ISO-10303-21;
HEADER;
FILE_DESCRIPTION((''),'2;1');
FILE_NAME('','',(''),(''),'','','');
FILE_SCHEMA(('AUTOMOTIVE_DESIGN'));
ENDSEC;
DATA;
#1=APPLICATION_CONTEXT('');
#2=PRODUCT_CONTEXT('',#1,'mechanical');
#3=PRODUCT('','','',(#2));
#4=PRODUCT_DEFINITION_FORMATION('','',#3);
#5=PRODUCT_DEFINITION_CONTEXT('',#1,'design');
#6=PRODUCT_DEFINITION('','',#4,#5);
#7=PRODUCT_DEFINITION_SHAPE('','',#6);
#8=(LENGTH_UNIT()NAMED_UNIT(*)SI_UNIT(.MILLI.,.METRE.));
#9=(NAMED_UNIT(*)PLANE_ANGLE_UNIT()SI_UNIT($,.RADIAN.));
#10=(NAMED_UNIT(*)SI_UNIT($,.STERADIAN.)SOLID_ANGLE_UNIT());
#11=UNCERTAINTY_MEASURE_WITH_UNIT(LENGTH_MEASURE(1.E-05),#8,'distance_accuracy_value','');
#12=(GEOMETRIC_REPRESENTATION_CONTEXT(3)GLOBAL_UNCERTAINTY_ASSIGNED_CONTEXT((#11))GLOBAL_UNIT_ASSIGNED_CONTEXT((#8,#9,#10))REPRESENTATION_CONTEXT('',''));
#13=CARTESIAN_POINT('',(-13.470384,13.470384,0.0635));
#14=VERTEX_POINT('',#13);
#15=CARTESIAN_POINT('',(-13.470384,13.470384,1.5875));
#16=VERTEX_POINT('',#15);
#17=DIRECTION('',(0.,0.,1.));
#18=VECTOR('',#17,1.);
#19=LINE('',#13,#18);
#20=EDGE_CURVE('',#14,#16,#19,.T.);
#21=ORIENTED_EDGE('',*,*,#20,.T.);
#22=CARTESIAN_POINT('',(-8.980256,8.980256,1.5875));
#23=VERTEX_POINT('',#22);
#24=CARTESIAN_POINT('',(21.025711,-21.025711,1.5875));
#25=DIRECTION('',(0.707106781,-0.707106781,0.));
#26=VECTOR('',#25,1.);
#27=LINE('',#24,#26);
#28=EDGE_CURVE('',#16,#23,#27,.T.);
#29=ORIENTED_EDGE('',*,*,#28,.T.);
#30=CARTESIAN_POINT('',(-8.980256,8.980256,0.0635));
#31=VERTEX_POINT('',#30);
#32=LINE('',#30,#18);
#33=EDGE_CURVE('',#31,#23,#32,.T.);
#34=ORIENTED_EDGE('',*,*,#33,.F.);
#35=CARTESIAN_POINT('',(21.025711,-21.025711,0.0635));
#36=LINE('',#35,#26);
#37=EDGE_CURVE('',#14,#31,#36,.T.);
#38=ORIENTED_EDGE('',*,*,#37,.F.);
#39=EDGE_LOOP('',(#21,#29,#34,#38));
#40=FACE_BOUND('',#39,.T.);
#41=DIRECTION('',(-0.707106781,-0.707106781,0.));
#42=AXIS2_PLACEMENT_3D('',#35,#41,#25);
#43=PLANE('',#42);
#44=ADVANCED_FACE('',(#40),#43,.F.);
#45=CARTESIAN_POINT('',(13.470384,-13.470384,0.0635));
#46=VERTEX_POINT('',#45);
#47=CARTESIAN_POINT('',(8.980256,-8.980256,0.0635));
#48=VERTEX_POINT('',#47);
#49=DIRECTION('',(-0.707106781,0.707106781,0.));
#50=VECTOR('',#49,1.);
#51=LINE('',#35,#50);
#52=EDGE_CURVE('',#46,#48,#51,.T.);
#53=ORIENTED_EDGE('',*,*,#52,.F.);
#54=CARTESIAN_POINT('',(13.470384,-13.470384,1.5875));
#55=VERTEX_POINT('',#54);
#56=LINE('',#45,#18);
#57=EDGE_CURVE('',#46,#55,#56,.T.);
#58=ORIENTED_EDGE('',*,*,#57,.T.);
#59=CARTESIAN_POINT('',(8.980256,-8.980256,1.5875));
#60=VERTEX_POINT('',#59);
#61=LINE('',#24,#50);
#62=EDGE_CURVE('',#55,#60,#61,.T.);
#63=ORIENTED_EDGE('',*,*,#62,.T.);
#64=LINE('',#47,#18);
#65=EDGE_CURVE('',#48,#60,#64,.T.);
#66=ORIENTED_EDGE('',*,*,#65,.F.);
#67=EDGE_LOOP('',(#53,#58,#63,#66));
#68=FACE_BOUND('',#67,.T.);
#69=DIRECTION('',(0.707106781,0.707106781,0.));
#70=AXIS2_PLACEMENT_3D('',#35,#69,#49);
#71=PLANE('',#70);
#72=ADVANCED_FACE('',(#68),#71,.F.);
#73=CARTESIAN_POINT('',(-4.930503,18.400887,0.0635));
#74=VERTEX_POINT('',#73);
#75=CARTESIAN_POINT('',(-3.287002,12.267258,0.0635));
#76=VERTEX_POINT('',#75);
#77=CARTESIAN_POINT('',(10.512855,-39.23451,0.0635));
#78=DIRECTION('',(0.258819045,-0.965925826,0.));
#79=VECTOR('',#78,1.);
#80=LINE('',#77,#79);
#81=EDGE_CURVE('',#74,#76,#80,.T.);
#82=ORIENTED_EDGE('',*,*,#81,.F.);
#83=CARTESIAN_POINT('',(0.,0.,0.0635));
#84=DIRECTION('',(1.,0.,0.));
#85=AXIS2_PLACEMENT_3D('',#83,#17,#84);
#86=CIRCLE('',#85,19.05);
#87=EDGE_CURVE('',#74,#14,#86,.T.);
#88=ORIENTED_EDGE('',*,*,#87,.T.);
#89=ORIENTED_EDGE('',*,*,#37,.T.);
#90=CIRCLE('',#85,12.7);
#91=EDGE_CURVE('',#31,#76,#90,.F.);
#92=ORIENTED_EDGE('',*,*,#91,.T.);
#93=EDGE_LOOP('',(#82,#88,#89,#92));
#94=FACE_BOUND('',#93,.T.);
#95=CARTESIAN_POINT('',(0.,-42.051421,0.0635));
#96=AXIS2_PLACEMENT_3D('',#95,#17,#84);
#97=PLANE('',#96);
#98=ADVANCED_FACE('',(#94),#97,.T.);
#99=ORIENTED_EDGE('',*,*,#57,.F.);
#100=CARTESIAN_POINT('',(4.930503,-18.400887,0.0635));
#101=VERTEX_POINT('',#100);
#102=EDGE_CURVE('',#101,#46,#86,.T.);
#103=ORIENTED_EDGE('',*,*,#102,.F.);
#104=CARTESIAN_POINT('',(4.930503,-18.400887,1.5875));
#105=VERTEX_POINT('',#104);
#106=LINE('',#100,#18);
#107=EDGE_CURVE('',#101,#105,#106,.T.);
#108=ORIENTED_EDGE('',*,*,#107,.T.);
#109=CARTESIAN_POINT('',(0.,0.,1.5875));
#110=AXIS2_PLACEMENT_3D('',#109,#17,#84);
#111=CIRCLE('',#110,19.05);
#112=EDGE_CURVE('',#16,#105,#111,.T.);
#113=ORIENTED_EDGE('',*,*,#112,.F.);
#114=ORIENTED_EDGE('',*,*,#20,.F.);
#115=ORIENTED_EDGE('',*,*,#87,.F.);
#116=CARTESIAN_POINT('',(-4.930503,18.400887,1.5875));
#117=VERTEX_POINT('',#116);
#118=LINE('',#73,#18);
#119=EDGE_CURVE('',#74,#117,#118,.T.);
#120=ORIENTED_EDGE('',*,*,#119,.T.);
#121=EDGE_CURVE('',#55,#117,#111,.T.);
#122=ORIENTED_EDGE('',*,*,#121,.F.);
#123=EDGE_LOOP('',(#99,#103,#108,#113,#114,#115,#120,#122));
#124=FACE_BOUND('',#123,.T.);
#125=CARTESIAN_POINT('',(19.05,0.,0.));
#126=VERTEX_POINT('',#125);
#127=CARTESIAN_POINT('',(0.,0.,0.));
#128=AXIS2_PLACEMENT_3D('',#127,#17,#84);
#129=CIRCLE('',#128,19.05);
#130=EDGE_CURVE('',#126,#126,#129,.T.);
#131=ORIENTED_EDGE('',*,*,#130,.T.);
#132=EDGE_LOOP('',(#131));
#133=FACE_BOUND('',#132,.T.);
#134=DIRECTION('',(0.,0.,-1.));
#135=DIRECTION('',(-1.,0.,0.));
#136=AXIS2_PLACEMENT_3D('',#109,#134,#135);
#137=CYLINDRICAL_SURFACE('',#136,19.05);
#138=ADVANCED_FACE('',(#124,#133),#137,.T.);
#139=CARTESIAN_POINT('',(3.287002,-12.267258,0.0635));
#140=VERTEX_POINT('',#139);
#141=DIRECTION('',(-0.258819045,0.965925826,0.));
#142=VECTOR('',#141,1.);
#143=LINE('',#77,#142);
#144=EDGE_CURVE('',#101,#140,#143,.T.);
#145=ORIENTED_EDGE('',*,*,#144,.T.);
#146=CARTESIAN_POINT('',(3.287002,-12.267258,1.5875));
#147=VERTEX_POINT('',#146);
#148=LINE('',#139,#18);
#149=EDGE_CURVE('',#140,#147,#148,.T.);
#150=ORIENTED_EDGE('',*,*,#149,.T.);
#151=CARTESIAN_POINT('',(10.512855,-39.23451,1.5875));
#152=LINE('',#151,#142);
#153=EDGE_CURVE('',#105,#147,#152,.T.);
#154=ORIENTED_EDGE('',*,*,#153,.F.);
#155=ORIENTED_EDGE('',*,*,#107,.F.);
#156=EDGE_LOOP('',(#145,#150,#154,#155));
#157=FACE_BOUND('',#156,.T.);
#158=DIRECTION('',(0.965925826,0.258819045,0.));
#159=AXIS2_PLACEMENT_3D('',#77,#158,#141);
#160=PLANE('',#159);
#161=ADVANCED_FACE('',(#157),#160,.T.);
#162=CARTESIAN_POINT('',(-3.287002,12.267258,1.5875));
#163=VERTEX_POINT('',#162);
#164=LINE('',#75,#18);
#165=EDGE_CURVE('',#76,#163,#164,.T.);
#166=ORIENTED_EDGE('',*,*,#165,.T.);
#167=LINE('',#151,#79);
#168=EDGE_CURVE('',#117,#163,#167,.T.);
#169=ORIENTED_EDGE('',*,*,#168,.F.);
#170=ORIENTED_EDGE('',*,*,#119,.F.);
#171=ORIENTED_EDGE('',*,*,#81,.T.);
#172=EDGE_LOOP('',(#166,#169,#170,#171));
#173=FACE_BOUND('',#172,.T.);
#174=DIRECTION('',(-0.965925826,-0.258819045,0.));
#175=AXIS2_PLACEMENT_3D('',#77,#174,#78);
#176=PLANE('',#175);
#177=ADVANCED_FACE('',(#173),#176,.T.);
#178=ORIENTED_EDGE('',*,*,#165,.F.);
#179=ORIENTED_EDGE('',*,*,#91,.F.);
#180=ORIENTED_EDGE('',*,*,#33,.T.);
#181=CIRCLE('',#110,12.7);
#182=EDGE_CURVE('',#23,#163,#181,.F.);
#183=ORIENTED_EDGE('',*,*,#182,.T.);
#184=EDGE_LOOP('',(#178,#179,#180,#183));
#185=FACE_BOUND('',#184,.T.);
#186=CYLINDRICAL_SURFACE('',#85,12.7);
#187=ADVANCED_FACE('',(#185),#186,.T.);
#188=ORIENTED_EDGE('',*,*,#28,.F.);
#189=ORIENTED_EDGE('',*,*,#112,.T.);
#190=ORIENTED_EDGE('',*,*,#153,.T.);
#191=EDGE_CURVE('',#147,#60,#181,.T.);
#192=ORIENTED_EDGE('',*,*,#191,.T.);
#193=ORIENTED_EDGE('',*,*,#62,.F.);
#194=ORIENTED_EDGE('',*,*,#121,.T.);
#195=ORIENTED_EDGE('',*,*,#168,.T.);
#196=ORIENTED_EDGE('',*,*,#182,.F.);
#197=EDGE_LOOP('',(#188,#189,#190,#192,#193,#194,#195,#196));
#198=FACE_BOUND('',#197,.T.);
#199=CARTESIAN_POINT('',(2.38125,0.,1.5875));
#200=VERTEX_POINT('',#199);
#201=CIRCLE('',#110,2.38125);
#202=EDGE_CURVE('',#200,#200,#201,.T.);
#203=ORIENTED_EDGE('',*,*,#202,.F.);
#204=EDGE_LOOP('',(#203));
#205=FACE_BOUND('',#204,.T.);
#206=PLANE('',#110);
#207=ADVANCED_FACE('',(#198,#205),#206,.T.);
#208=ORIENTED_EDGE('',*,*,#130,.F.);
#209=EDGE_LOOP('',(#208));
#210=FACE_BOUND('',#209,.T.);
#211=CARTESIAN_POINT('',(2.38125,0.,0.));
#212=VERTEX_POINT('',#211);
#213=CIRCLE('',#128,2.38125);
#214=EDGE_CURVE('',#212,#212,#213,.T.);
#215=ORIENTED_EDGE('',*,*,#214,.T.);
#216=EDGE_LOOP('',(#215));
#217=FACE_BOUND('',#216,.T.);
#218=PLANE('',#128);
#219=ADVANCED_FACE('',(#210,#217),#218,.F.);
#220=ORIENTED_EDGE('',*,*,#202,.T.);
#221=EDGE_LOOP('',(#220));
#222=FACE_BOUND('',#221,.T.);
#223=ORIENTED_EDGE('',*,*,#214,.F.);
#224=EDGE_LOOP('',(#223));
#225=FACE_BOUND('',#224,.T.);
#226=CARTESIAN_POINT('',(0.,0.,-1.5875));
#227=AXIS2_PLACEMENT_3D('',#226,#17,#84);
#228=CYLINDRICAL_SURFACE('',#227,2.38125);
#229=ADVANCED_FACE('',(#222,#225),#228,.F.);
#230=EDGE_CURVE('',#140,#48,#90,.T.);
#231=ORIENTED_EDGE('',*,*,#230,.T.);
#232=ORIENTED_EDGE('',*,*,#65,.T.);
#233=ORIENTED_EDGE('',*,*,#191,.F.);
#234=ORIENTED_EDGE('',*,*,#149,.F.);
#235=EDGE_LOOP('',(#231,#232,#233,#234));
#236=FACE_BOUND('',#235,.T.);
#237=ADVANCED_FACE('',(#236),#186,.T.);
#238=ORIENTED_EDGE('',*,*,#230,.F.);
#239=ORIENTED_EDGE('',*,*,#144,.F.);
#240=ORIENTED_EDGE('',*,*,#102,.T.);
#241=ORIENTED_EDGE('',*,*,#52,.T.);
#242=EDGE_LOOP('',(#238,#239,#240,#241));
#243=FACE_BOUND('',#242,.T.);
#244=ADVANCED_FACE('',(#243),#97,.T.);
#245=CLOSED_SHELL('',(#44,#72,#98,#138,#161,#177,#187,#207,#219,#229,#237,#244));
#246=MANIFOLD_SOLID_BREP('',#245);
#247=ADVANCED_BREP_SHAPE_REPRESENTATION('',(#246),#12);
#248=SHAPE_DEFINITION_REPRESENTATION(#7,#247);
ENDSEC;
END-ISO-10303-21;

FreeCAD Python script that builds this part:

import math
import FreeCAD as App
import Part
import Sketcher
from FreeCAD import Vector
Q = App.Units.Quantity

doc = App.newDocument("Part")
body = doc.addObject("PartDesign::Body", "Body")

# Sketch on XY plane
sketch1 = body.newObject("Sketcher::SketchObject", "Sketch")
sketch1.AttachmentSupport = (doc.getObject("XY_Plane"), [""])
sketch1.MapMode = "FlatFace"
sketch1.addGeometry(Part.Circle(Vector(0, 0, 0), Vector(0, 0, 1), 19.05), False)
sketch1.addConstraint([
    Sketcher.Constraint("Coincident", 0, 3, -1, 1),
    Sketcher.Constraint("Diameter", 0, Q("1.5 in")),
])
pad1 = body.newObject("PartDesign::Pad", "Pad")
pad1.Profile = sketch1
pad1.Length = Q("0.0625 in")

# Sketch on XY plane
sketch2 = body.newObject("Sketcher::SketchObject", "Sketch001")
sketch2.AttachmentSupport = (doc.getObject("XY_Plane"), [""])
sketch2.MapMode = "FlatFace"
sketch2.AttachmentOffset = App.Placement(Vector(0, 0, 0.0625 * 25.4), App.Rotation())
sketch2.addGeometry(Part.Circle(Vector(0, 0, 0), Vector(0, 0, 1), 2.38125), False)
sketch2.addConstraint([
    Sketcher.Constraint("Coincident", 0, 3, -1, 1),
    Sketcher.Constraint("Diameter", 0, Q("0.1875 in")),
])
pocket1 = body.newObject("PartDesign::Pocket", "Pocket")
pocket1.Profile = sketch2
pocket1.Length = Q("0.125 in")

# Sketch on XY plane
sketch3 = body.newObject("Sketcher::SketchObject", "Sketch002")
sketch3.AttachmentSupport = (doc.getObject("XY_Plane"), [""])
sketch3.MapMode = "FlatFace"
sketch3.AttachmentOffset = App.Placement(Vector(0, 0, 0.0625 * 25.4), App.Rotation())
sketch3.addGeometry([
    Part.ArcOfCircle(Part.Circle(Vector(0, 0, 0), Vector(0, 0, 1), 19.05), math.radians(105), math.radians(135)),  # 0
    Part.LineSegment(Vector(-13.470384, 13.470384, 0), Vector(-8.980256, 8.980256, 0)),  # 1
    Part.ArcOfCircle(Part.Circle(Vector(0, 0, 0), Vector(0, 0, 1), 12.7), math.radians(105), math.radians(135)),  # 2
    Part.LineSegment(Vector(-3.287002, 12.267258, 0), Vector(-4.930503, 18.400887, 0)),  # 3
    Part.LineSegment(Vector(3.287002, -12.267258, 0), Vector(4.930503, -18.400887, 0)),  # 4
    Part.ArcOfCircle(Part.Circle(Vector(0, 0, 0), Vector(0, 0, 1), 19.05), math.radians(-75), math.radians(-45)),  # 5
    Part.LineSegment(Vector(13.470384, -13.470384, 0), Vector(8.980256, -8.980256, 0)),  # 6
    Part.ArcOfCircle(Part.Circle(Vector(0, 0, 0), Vector(0, 0, 1), 12.7), math.radians(-75), math.radians(-45)),  # 7
], False)
sketch3.addConstraint([
    Sketcher.Constraint("Coincident", 0, 2, 1, 1),
    Sketcher.Constraint("Coincident", 1, 2, 2, 2),
    Sketcher.Constraint("Coincident", 2, 1, 3, 1),
    Sketcher.Constraint("Coincident", 3, 2, 0, 1),
    Sketcher.Constraint("Coincident", 4, 2, 5, 1),
    Sketcher.Constraint("Coincident", 5, 2, 6, 1),
    Sketcher.Constraint("Coincident", 6, 2, 7, 2),
    Sketcher.Constraint("Coincident", 7, 1, 4, 1),
    Sketcher.Constraint("Coincident", 0, 3, -1, 1),
    Sketcher.Constraint("Coincident", 2, 3, -1, 1),
    Sketcher.Constraint("Coincident", 5, 3, -1, 1),
    Sketcher.Constraint("Coincident", 7, 3, -1, 1),
    Sketcher.Constraint("Equal", 0, 5),
    Sketcher.Constraint("Equal", 2, 7),
    Sketcher.Constraint("Parallel", 3, 4),
    Sketcher.Constraint("Parallel", 1, 6),
    Sketcher.Constraint("Radius", 2, Q("0.5 in")),
    Sketcher.Constraint("Radius", 0, Q("0.75 in")),
    Sketcher.Constraint("Angle", 1, Q("-45 deg")),
    Sketcher.Constraint("Angle", 3, Q("105 deg")),
    Sketcher.Constraint("DistanceX", 2, 1, -1, 1, Q("3.287002 mm")),
    Sketcher.Constraint("DistanceX", -1, 1, 7, 1, Q("3.287002 mm")),
    Sketcher.Constraint("DistanceY", 1, 2, 2, 1, Q("3.287002 mm")),
    Sketcher.Constraint("DistanceY", 7, 1, 6, 2, Q("3.287002 mm")),
])
pocket2 = body.newObject("PartDesign::Pocket", "Pocket001")
pocket2.Profile = sketch3
pocket2.Length = Q("0.06 in")

doc.recompute()
